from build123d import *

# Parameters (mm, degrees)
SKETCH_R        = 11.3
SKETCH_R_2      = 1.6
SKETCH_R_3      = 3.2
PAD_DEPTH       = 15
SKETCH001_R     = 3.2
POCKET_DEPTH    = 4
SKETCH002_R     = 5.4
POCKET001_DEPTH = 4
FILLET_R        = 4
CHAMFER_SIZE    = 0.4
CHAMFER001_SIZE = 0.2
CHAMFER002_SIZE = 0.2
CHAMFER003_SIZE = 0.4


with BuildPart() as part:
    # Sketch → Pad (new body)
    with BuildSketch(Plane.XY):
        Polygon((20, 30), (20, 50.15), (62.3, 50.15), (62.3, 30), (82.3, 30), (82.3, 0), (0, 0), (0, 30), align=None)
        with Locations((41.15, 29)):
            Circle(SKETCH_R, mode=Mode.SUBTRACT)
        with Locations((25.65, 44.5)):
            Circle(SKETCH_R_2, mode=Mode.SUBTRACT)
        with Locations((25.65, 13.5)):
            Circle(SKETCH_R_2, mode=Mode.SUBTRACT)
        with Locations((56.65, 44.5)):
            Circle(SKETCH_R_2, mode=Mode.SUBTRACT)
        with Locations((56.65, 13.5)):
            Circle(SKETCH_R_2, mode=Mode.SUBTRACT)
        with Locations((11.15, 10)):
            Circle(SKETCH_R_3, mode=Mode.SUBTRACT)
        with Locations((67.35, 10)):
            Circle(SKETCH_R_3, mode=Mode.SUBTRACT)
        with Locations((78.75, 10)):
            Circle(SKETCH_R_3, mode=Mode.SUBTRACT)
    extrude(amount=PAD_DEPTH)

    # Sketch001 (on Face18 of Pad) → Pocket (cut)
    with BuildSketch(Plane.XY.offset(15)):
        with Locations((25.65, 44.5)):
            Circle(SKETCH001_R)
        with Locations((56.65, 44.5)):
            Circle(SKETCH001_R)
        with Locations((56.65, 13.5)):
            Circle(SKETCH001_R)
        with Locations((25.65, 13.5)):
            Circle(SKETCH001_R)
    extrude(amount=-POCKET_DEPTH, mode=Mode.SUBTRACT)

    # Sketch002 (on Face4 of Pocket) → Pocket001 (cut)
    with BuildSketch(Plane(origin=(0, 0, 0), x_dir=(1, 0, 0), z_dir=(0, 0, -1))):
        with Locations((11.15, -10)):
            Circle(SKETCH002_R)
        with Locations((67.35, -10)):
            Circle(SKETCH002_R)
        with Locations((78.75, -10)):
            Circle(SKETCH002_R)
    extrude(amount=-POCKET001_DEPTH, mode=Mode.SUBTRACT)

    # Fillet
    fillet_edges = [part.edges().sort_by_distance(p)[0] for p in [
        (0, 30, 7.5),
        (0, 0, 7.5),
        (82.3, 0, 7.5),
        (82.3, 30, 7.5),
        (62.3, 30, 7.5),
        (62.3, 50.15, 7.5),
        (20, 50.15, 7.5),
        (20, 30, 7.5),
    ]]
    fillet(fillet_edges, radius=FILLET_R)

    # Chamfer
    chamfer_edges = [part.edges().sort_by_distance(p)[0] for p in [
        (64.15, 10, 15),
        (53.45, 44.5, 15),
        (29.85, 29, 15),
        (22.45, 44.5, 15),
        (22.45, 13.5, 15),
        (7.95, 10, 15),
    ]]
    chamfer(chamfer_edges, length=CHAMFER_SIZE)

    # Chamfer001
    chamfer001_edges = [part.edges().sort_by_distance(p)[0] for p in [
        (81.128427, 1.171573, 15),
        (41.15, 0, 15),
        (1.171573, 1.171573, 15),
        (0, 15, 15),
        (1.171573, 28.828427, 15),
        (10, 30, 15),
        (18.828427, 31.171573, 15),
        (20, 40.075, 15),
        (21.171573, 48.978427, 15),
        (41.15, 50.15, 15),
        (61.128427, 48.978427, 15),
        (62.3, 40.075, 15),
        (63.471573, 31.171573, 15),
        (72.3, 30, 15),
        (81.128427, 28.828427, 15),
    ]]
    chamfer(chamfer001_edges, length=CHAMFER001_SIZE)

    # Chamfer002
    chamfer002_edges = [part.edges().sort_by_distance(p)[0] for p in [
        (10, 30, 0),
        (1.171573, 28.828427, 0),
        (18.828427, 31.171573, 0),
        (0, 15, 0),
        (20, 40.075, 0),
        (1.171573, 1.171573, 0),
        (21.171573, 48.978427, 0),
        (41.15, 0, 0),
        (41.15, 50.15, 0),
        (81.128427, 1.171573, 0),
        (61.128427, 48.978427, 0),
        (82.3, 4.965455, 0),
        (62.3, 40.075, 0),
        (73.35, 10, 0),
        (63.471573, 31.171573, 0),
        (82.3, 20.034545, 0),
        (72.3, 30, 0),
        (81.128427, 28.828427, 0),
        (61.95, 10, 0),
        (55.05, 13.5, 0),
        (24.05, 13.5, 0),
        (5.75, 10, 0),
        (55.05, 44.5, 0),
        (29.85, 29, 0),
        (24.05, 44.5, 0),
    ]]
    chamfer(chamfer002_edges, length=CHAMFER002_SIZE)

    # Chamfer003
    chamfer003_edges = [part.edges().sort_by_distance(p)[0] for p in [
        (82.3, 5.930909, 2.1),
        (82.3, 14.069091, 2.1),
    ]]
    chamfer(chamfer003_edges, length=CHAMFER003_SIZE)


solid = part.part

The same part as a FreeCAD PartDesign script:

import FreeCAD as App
import Part
import Sketcher
from FreeCAD import Vector


def edges_at(feature, points):
    """Names of the edges that pass closest to the given points."""
    edges = feature.Shape.Edges
    near = lambda p: min(range(len(edges)), key=lambda i: edges[i].distToShape(Part.Vertex(*p))[0])
    return sorted({f"Edge{near(p) + 1}" for p in points})


def add_polygon(sketch, points):
    """Adds a closed chain of lines whose ends are joined by coincident constraints."""
    first, n = sketch.GeometryCount, len(points)
    for a, b in zip(points, points[1:] + points[:1]):
        sketch.addGeometry(Part.LineSegment(App.Vector(*a, 0), App.Vector(*b, 0)), False)
    for i in range(n):
        sketch.addConstraint(Sketcher.Constraint("Coincident", first + i, 2, first + (i + 1) % n, 1))

doc = App.newDocument("Part")
body = doc.addObject("PartDesign::Body", "Body")

# Sketch on XY plane
sketch1 = doc.addObject("Sketcher::SketchObject", "Sketch")
body.addObject(sketch1)
sketch1.AttachmentSupport = (doc.XY_Plane, [""])
sketch1.MapMode = "FlatFace"
add_polygon(sketch1, [(20, 50.15), (20, 30), (0, 30), (0, 0), (82.3, 0), (82.3, 30), (62.3, 30), (62.3, 50.15)])  # lines 0-7
sketch1.addGeometry(Part.Circle(Vector(78.75, 10, 0), Vector(0, 0, 1), 3.2), False)  # 8
sketch1.addGeometry(Part.Circle(Vector(67.35, 10, 0), Vector(0, 0, 1), 3.2), False)  # 9
sketch1.addGeometry(Part.Circle(Vector(56.65, 13.5, 0), Vector(0, 0, 1), 1.6), False)  # 10
sketch1.addGeometry(Part.Circle(Vector(11.15, 10, 0), Vector(0, 0, 1), 3.2), False)  # 11
sketch1.addGeometry(Part.Circle(Vector(25.65, 13.5, 0), Vector(0, 0, 1), 1.6), False)  # 12
sketch1.addGeometry(Part.Circle(Vector(56.65, 44.5, 0), Vector(0, 0, 1), 1.6), False)  # 13
sketch1.addGeometry(Part.Circle(Vector(41.15, 29, 0), Vector(0, 0, 1), 11.3), False)  # 14
sketch1.addGeometry(Part.Circle(Vector(25.65, 44.5, 0), Vector(0, 0, 1), 1.6), False)  # 15
sketch1.addConstraint([
    Sketcher.Constraint("Vertical", 0),
    Sketcher.Constraint("Horizontal", 1),
    Sketcher.Constraint("Vertical", 2),
    Sketcher.Constraint("Horizontal", 3),
    Sketcher.Constraint("Vertical", 4),
    Sketcher.Constraint("Horizontal", 5),
    Sketcher.Constraint("Vertical", 6),
    Sketcher.Constraint("Horizontal", 7),
    Sketcher.Constraint("Coincident", 2, 2, -1, 1),
    Sketcher.Constraint("Equal", 8, 9),
    Sketcher.Constraint("Equal", 9, 11),
    Sketcher.Constraint("Equal", 10, 12),
    Sketcher.Constraint("Equal", 12, 13),
    Sketcher.Constraint("Equal", 13, 15),
    Sketcher.Constraint("Horizontal", 8, 3, 9, 3),
    Sketcher.Constraint("Horizontal", 9, 3, 11, 3),
    Sketcher.Constraint("Horizontal", 10, 3, 12, 3),
    Sketcher.Constraint("Horizontal", 13, 3, 15, 3),
    Sketcher.Constraint("Horizontal", 1, 2, 4, 2),
    Sketcher.Constraint("Vertical", 10, 3, 13, 3),
    Sketcher.Constraint("Vertical", 12, 3, 15, 3),
    Sketcher.Constraint("Equal", 1, 5),
    Sketcher.Constraint("Diameter", 8, 6.4),
    Sketcher.Constraint("Diameter", 10, 3.2),
    Sketcher.Constraint("Diameter", 14, 22.6),
    Sketcher.Constraint("DistanceX", 1, 2, 1, 1, 20.0),
    Sketcher.Constraint("DistanceY", 2, 2, 2, 1, 30.0),
    Sketcher.Constraint("DistanceX", 3, 1, 3, 2, 82.3),
    Sketcher.Constraint("DistanceY", -1, 1, 8, 3, 10.0),
    Sketcher.Constraint("DistanceY", -1, 1, 14, 3, 29.0),
    Sketcher.Constraint("DistanceX", 12, 3, 10, 3, 31.0),
    Sketcher.Constraint("DistanceY", 10, 3, 13, 3, 31.0),
    Sketcher.Constraint("DistanceX", 11, 3, 14, 3, 30.0),
    Sketcher.Constraint("DistanceY", 0, 2, 0, 1, 20.15),
    Sketcher.Constraint("DistanceY", -1, 1, 10, 3, 13.5),
    Sketcher.Constraint("DistanceX", 9, 3, 8, 3, 11.4),
    Sketcher.Constraint("DistanceX", 10, 3, 9, 3, 10.7),
    Sketcher.Constraint("DistanceX", 11, 3, 10, 3, 45.5),
    Sketcher.Constraint("DistanceX", -1, 1, 8, 3, 78.75),
])
pad1 = doc.addObject("PartDesign::Pad", "Pad")
body.addObject(pad1)
pad1.Profile = sketch1
pad1.Length = 15

# Sketch on XY plane
sketch2 = doc.addObject("Sketcher::SketchObject", "Sketch001")
body.addObject(sketch2)
sketch2.AttachmentSupport = (doc.XY_Plane, [""])
sketch2.MapMode = "FlatFace"
sketch2.AttachmentOffset = App.Placement(Vector(0, 0, 15), App.Rotation())
sketch2.addGeometry([
    Part.Circle(Vector(25.65, 44.5, 0), Vector(0, 0, 1), 3.2),
    Part.Circle(Vector(56.65, 44.5, 0), Vector(0, 0, 1), 3.2),
    Part.Circle(Vector(56.65, 13.5, 0), Vector(0, 0, 1), 3.2),
    Part.Circle(Vector(25.65, 13.5, 0), Vector(0, 0, 1), 3.2),
], False)
sketch2.addConstraint([
    Sketcher.Constraint("Equal", 0, 1),
    Sketcher.Constraint("Equal", 1, 2),
    Sketcher.Constraint("Equal", 2, 3),
    Sketcher.Constraint("Horizontal", 0, 3, 1, 3),
    Sketcher.Constraint("Horizontal", 2, 3, 3, 3),
    Sketcher.Constraint("Vertical", 1, 3, 2, 3),
    Sketcher.Constraint("Vertical", 0, 3, 3, 3),
    Sketcher.Constraint("Diameter", 0, 6.4),
    Sketcher.Constraint("DistanceX", 0, 3, 1, 3, 31.0),
    Sketcher.Constraint("DistanceY", 2, 3, 1, 3, 31.0),
    Sketcher.Constraint("DistanceY", -1, 1, 0, 3, 44.5),
    Sketcher.Constraint("DistanceX", -1, 1, 0, 3, 25.65),
])
pocket1 = doc.addObject("PartDesign::Pocket", "Pocket")
body.addObject(pocket1)
pocket1.Profile = sketch2
pocket1.Length = 4

# Sketch on XY plane
sketch3 = doc.addObject("Sketcher::SketchObject", "Sketch002")
body.addObject(sketch3)
sketch3.AttachmentSupport = (doc.XY_Plane, [""])
sketch3.MapMode = "FlatFace"
sketch3.addGeometry([
    Part.Circle(Vector(11.15, 10, 0), Vector(0, 0, 1), 5.4),
    Part.Circle(Vector(67.35, 10, 0), Vector(0, 0, 1), 5.4),
    Part.Circle(Vector(78.75, 10, 0), Vector(0, 0, 1), 5.4),
], False)
sketch3.addConstraint([
    Sketcher.Constraint("Equal", 0, 1),
    Sketcher.Constraint("Equal", 1, 2),
    Sketcher.Constraint("Horizontal", 0, 3, 1, 3),
    Sketcher.Constraint("Horizontal", 1, 3, 2, 3),
    Sketcher.Constraint("Diameter", 0, 10.8),
    Sketcher.Constraint("DistanceY", -1, 1, 0, 3, 10.0),
    Sketcher.Constraint("DistanceX", 0, 3, 1, 3, 56.2),
    Sketcher.Constraint("DistanceX", 1, 3, 2, 3, 11.4),
    Sketcher.Constraint("DistanceX", -1, 1, 0, 3, 11.15),
])
pocket2 = doc.addObject("PartDesign::Pocket", "Pocket001")
body.addObject(pocket2)
pocket2.Profile = sketch3
pocket2.Length = 4
pocket2.Reversed = True
doc.recompute()

fillet = doc.addObject("PartDesign::Fillet", "Fillet")
body.addObject(fillet)
fillet.Base = (pocket2, edges_at(pocket2, [
    (0, 30, 7.5),
    (0, 0, 7.5),
    (82.3, 0, 7.5),
    (82.3, 30, 7.5),
    (62.3, 30, 7.5),
    (62.3, 50.15, 7.5),
    (20, 50.15, 7.5),
    (20, 30, 7.5),
]))
fillet.Radius = 4
doc.recompute()

chamfer = doc.addObject("PartDesign::Chamfer", "Chamfer")
body.addObject(chamfer)
chamfer.Base = (fillet, edges_at(fillet, [
    (64.15, 10, 15),
    (53.45, 44.5, 15),
    (29.85, 29, 15),
    (22.45, 44.5, 15),
    (22.45, 13.5, 15),
    (7.95, 10, 15),
]))
chamfer.Size = 0.4
doc.recompute()

chamfer2 = doc.addObject("PartDesign::Chamfer", "Chamfer001")
body.addObject(chamfer2)
chamfer2.Base = (chamfer, edges_at(chamfer, [
    (81.128, 1.172, 15),
    (41.15, 0, 15),
    (1.172, 1.172, 15),
    (0, 15, 15),
    (1.172, 28.828, 15),
    (10, 30, 15),
    (18.828, 31.172, 15),
    (20, 40.075, 15),
    (21.172, 48.978, 15),
    (41.15, 50.15, 15),
    (61.128, 48.978, 15),
    (62.3, 40.075, 15),
    (63.472, 31.172, 15),
    (72.3, 30, 15),
    (81.128, 28.828, 15),
]))
chamfer2.Size = 0.2
doc.recompute()

chamfer3 = doc.addObject("PartDesign::Chamfer", "Chamfer002")
body.addObject(chamfer3)
chamfer3.Base = (chamfer2, edges_at(chamfer2, [
    (10, 30, 0),
    (1.172, 28.828, 0),
    (18.828, 31.172, 0),
    (0, 15, 0),
    (20, 40.075, 0),
    (1.172, 1.172, 0),
    (21.172, 48.978, 0),
    (41.15, 0, 0),
    (41.15, 50.15, 0),
    (81.128, 1.172, 0),
    (61.128, 48.978, 0),
    (82.3, 4.965, 0),
    (62.3, 40.075, 0),
    (73.35, 10, 0),
    (63.472, 31.172, 0),
    (82.3, 20.035, 0),
    (72.3, 30, 0),
    (81.128, 28.828, 0),
    (61.95, 10, 0),
    (55.05, 13.5, 0),
    (24.05, 13.5, 0),
    (5.75, 10, 0),
    (55.05, 44.5, 0),
    (29.85, 29, 0),
    (24.05, 44.5, 0),
]))
chamfer3.Size = 0.2
doc.recompute()

chamfer4 = doc.addObject("PartDesign::Chamfer", "Chamfer003")
body.addObject(chamfer4)
chamfer4.Base = (chamfer3, edges_at(chamfer3, [(82.3, 5.931, 2.1), (82.3, 14.069, 2.1)]))
chamfer4.Size = 0.4

doc.recompute()
